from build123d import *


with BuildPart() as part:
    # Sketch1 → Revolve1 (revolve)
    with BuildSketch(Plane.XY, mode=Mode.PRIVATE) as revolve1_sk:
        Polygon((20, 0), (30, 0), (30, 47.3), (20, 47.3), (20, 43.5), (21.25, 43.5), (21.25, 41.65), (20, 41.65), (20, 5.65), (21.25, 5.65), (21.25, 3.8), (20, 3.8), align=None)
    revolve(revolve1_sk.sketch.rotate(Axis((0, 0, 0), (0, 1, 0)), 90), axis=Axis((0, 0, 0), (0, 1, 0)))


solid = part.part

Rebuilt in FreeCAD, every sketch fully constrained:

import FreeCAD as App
import Part
import Sketcher

doc = App.newDocument("Part")
body = doc.addObject("PartDesign::Body", "Body")

# Sketch on XY plane
sketch1 = doc.addObject("Sketcher::SketchObject", "Sketch")
body.addObject(sketch1)
sketch1.AttachmentSupport = (doc.XY_Plane, [""])
sketch1.MapMode = "FlatFace"
sketch1.addGeometry([
    Part.LineSegment(App.Vector(20, 0, 0), App.Vector(30, 0, 0)),  # 0
    Part.LineSegment(App.Vector(30, 0, 0), App.Vector(30, 47.3, 0)),  # 1
    Part.LineSegment(App.Vector(30, 47.3, 0), App.Vector(20, 47.3, 0)),  # 2
    Part.LineSegment(App.Vector(20, 47.3, 0), App.Vector(20, 43.5, 0)),  # 3
    Part.LineSegment(App.Vector(20, 43.5, 0), App.Vector(21.2, 43.5, 0)),  # 4
    Part.LineSegment(App.Vector(21.2, 43.5, 0), App.Vector(21.2, 41.6, 0)),  # 5
    Part.LineSegment(App.Vector(21.2, 41.6, 0), App.Vector(20, 41.6, 0)),  # 6
    Part.LineSegment(App.Vector(20, 41.6, 0), App.Vector(20, 5.7, 0)),  # 7
    Part.LineSegment(App.Vector(20, 5.7, 0), App.Vector(21.2, 5.7, 0)),  # 8
    Part.LineSegment(App.Vector(21.2, 5.7, 0), App.Vector(21.2, 3.8, 0)),  # 9
    Part.LineSegment(App.Vector(21.2, 3.8, 0), App.Vector(20, 3.8, 0)),  # 10
    Part.LineSegment(App.Vector(20, 3.8, 0), App.Vector(20, 0, 0)),  # 11
], False)
sketch1.addConstraint([
    Sketcher.Constraint("Coincident", 0, 2, 1, 1),
    Sketcher.Constraint("Coincident", 1, 2, 2, 1),
    Sketcher.Constraint("Coincident", 2, 2, 3, 1),
    Sketcher.Constraint("Coincident", 3, 2, 4, 1),
    Sketcher.Constraint("Coincident", 4, 2, 5, 1),
    Sketcher.Constraint("Coincident", 5, 2, 6, 1),
    Sketcher.Constraint("Coincident", 6, 2, 7, 1),
    Sketcher.Constraint("Coincident", 7, 2, 8, 1),
    Sketcher.Constraint("Coincident", 8, 2, 9, 1),
    Sketcher.Constraint("Coincident", 9, 2, 10, 1),
    Sketcher.Constraint("Coincident", 10, 2, 11, 1),
    Sketcher.Constraint("Coincident", 11, 2, 0, 1),
    Sketcher.Constraint("Horizontal", 0),
    Sketcher.Constraint("Vertical", 1),
    Sketcher.Constraint("Horizontal", 2),
    Sketcher.Constraint("Vertical", 3),
    Sketcher.Constraint("Horizontal", 4),
    Sketcher.Constraint("Vertical", 5),
    Sketcher.Constraint("Horizontal", 6),
    Sketcher.Constraint("Vertical", 7),
    Sketcher.Constraint("Horizontal", 8),
    Sketcher.Constraint("Vertical", 9),
    Sketcher.Constraint("Horizontal", 10),
    Sketcher.Constraint("Vertical", 11),
    Sketcher.Constraint("PointOnObject", 0, 2, -1),
    Sketcher.Constraint("Vertical", 3, 2, 6, 2),
    Sketcher.Constraint("Vertical", 5, 2, 8, 2),
    Sketcher.Constraint("Vertical", 7, 2, 10, 2),
    Sketcher.Constraint("Equal", 5, 9),
    Sketcher.Constraint("Equal", 3, 11),
    Sketcher.Constraint("DistanceX", 0, 1, 0, 2, 10.0),
    Sketcher.Constraint("DistanceY", 7, 2, 7, 1, 36.0),
    Sketcher.Constraint("DistanceY", 1, 1, 1, 2, 47.3),
    Sketcher.Constraint("DistanceY", 3, 2, 3, 1, 3.8),
    Sketcher.Constraint("DistanceX", -1, 1, 0, 2, 30.0),
    Sketcher.Constraint("DistanceX", 4, 1, 4, 2, 1.25),
])
revolution = doc.addObject("PartDesign::Revolution", "Revolution")
body.addObject(revolution)
revolution.Profile = sketch1
revolution.ReferenceAxis = (sketch1, ["V_Axis"])
revolution.Angle = 360

doc.recompute()
